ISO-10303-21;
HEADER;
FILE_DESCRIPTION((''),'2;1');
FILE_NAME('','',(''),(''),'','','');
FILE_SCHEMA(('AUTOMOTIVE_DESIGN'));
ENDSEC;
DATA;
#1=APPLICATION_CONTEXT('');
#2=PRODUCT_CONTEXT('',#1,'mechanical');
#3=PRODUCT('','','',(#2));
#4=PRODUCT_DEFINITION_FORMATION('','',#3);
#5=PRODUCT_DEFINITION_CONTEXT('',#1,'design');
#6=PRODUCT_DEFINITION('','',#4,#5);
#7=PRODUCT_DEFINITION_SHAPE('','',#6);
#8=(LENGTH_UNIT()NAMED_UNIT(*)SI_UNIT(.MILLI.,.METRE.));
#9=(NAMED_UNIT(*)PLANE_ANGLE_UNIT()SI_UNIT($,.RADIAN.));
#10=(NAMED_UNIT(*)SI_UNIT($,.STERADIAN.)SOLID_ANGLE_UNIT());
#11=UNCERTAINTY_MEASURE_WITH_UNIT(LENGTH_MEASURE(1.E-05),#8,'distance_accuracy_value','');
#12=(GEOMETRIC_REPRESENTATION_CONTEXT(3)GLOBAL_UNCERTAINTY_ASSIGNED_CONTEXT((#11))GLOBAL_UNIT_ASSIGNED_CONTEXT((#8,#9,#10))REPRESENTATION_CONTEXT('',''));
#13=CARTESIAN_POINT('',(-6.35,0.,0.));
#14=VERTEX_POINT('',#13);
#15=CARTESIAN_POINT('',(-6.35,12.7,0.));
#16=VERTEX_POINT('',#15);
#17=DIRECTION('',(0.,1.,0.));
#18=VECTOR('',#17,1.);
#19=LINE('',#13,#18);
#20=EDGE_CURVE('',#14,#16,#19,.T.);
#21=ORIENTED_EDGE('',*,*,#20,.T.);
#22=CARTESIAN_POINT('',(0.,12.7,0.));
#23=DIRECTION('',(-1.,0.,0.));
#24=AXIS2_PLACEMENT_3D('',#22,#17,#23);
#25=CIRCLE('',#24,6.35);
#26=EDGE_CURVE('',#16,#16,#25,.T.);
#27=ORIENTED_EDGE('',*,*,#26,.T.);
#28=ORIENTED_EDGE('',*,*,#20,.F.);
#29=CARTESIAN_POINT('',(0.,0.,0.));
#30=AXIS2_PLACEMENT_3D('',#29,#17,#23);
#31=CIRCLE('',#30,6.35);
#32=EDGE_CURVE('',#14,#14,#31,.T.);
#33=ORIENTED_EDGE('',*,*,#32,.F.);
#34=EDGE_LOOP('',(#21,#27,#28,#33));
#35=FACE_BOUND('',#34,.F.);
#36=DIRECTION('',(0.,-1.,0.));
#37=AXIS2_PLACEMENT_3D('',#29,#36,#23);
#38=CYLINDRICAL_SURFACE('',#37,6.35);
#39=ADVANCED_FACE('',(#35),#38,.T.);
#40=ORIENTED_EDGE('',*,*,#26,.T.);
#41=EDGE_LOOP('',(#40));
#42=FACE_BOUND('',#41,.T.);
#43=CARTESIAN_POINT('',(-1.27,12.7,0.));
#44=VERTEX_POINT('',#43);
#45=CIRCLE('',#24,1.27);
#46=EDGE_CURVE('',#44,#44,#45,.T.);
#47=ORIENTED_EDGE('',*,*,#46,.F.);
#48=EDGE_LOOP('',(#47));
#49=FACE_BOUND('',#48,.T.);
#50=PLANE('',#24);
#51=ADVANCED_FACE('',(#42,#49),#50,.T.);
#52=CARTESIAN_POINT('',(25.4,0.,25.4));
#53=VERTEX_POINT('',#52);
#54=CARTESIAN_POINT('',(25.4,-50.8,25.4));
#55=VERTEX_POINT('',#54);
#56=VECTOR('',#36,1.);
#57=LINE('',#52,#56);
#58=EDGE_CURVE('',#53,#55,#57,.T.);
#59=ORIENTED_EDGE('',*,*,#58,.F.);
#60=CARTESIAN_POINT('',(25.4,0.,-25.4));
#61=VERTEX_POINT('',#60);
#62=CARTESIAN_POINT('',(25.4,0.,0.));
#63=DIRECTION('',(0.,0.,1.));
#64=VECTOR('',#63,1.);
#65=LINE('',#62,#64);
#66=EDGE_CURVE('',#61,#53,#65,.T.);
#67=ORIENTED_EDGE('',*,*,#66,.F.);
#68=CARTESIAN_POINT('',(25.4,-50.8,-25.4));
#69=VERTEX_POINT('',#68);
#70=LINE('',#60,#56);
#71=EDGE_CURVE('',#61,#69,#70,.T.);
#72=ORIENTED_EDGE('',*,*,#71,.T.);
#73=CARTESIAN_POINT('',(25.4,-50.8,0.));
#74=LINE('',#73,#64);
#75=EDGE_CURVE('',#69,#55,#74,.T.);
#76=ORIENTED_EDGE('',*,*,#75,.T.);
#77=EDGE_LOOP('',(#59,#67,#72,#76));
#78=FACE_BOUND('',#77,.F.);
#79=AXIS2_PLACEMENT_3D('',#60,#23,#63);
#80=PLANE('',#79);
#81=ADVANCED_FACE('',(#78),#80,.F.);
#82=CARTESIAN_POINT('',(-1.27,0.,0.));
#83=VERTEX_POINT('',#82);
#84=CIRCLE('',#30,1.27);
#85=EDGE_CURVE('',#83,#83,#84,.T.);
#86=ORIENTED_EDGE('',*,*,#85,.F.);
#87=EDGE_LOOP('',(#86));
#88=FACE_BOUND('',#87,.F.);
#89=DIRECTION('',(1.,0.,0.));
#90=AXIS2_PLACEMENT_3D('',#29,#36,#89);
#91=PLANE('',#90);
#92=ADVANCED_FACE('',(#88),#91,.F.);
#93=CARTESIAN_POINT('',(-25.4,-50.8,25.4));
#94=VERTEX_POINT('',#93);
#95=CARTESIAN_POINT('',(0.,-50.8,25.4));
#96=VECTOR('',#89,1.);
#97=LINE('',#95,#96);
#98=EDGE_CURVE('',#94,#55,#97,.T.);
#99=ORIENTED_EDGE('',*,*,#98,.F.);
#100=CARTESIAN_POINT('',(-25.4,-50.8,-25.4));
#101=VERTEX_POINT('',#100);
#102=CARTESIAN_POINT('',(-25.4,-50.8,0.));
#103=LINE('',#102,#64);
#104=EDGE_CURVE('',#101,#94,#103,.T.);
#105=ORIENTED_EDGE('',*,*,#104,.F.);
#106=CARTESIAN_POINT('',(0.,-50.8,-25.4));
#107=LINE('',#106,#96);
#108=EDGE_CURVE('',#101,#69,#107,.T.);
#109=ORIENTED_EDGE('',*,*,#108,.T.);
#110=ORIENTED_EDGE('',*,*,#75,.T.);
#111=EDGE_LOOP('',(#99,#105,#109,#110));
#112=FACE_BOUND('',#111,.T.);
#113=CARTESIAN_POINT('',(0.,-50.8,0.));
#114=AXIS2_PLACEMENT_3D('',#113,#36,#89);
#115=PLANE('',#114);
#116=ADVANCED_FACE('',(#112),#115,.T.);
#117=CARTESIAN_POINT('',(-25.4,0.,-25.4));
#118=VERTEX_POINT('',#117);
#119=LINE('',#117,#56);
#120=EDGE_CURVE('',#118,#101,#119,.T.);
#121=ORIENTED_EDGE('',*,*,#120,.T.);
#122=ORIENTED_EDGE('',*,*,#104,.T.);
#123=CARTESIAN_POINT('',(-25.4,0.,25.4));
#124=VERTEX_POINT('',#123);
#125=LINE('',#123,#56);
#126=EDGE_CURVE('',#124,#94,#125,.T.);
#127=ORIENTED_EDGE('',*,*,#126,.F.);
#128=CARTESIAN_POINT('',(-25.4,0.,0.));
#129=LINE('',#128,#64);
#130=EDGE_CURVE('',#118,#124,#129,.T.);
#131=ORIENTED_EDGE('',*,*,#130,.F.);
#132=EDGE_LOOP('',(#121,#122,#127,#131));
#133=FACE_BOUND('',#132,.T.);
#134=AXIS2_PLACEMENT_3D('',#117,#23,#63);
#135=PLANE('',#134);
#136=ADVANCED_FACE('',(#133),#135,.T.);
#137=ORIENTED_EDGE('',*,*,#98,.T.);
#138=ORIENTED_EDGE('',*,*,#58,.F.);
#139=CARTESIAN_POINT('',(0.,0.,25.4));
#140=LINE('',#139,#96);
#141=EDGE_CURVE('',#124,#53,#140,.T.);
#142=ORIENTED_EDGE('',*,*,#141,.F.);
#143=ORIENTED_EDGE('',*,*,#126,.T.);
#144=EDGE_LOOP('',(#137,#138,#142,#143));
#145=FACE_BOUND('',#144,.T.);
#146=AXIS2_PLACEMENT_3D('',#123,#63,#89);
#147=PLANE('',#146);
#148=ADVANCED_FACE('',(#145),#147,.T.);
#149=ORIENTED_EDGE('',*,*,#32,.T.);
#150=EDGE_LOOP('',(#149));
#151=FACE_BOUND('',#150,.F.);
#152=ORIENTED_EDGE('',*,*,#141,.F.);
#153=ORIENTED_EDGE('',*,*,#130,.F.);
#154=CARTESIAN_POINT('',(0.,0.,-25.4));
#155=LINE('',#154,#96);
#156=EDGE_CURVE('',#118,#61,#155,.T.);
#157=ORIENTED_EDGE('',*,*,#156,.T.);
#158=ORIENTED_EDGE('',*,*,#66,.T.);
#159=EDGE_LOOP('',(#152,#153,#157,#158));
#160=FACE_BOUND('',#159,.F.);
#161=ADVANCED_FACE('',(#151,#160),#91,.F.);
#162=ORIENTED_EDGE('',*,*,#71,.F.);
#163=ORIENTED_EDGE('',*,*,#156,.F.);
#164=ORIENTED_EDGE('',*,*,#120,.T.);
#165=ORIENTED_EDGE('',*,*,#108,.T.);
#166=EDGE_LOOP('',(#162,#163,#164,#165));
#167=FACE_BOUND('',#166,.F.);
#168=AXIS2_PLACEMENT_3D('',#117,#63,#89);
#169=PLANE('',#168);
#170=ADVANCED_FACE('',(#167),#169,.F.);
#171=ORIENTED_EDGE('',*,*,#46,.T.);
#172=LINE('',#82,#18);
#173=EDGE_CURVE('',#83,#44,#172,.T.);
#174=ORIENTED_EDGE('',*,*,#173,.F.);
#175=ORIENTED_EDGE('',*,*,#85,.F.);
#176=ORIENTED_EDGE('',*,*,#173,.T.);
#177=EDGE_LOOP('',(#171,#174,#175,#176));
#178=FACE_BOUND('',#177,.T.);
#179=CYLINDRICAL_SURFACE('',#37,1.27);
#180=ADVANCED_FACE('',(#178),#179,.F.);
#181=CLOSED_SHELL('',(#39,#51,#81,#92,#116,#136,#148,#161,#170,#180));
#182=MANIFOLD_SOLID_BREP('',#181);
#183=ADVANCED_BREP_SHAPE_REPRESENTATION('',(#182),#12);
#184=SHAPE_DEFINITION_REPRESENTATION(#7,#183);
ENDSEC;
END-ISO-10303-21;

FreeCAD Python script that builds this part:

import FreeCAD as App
import Part
import Sketcher
Q = App.Units.Quantity

doc = App.newDocument("Part")
body = doc.addObject("PartDesign::Body", "Body")

sketch1 = body.newObject("Sketcher::SketchObject", "Sketch")
sketch1.AttachmentSupport = (doc.getObject("XZ_Plane"), [""])
sketch1.MapMode = "FlatFace"
sketch1.addGeometry([
    Part.LineSegment(App.Vector(-25, 25, 0), App.Vector(-25, -25, 0)),
    Part.LineSegment(App.Vector(-25, -25, 0), App.Vector(25, -25, 0)),
    Part.LineSegment(App.Vector(25, -25, 0), App.Vector(25, 25, 0)),
    Part.LineSegment(App.Vector(25, 25, 0), App.Vector(-25, 25, 0)),
], False)
sketch1.addConstraint([
    Sketcher.Constraint("Coincident", 0, 2, 1, 1),
    Sketcher.Constraint("Coincident", 1, 2, 2, 1),
    Sketcher.Constraint("Coincident", 2, 2, 3, 1),
    Sketcher.Constraint("Coincident", 3, 2, 0, 1),
    Sketcher.Constraint("Vertical", 0),
    Sketcher.Constraint("Horizontal", 1),
    Sketcher.Constraint("Vertical", 2),
    Sketcher.Constraint("Horizontal", 3),
    Sketcher.Constraint("Symmetric", 0, 2, 2, 2, -1, 1),
    Sketcher.Constraint("Equal", 3, 0),
    Sketcher.Constraint("DistanceX", 1, 1, 1, 2, Q("2 in")),
])
pad1 = body.newObject("PartDesign::Pad", "Pad")
pad1.Profile = sketch1
pad1.Length = Q("2 in")

sketch2 = body.newObject("Sketcher::SketchObject", "Sketch001")
sketch2.AttachmentSupport = (doc.getObject("XZ_Plane"), [""])
sketch2.MapMode = "FlatFace"
sketch2.addGeometry([
    Part.Circle(App.Vector(0, 0, 0), App.Vector(0, 0, 1), 6.3),
    Part.Circle(App.Vector(0, 0, 0), App.Vector(0, 0, 1), 1.3),
], False)
sketch2.addConstraint([
    Sketcher.Constraint("Coincident", 0, 3, -1, 1),
    Sketcher.Constraint("Coincident", 1, 3, -1, 1),
    Sketcher.Constraint("Diameter", 0, Q("0.5 in")),
    Sketcher.Constraint("Diameter", 1, Q("0.1 in")),
])
pad2 = body.newObject("PartDesign::Pad", "Pad001")
pad2.Profile = sketch2
pad2.Length = Q("0.5 in")
pad2.Reversed = True

doc.recompute()
